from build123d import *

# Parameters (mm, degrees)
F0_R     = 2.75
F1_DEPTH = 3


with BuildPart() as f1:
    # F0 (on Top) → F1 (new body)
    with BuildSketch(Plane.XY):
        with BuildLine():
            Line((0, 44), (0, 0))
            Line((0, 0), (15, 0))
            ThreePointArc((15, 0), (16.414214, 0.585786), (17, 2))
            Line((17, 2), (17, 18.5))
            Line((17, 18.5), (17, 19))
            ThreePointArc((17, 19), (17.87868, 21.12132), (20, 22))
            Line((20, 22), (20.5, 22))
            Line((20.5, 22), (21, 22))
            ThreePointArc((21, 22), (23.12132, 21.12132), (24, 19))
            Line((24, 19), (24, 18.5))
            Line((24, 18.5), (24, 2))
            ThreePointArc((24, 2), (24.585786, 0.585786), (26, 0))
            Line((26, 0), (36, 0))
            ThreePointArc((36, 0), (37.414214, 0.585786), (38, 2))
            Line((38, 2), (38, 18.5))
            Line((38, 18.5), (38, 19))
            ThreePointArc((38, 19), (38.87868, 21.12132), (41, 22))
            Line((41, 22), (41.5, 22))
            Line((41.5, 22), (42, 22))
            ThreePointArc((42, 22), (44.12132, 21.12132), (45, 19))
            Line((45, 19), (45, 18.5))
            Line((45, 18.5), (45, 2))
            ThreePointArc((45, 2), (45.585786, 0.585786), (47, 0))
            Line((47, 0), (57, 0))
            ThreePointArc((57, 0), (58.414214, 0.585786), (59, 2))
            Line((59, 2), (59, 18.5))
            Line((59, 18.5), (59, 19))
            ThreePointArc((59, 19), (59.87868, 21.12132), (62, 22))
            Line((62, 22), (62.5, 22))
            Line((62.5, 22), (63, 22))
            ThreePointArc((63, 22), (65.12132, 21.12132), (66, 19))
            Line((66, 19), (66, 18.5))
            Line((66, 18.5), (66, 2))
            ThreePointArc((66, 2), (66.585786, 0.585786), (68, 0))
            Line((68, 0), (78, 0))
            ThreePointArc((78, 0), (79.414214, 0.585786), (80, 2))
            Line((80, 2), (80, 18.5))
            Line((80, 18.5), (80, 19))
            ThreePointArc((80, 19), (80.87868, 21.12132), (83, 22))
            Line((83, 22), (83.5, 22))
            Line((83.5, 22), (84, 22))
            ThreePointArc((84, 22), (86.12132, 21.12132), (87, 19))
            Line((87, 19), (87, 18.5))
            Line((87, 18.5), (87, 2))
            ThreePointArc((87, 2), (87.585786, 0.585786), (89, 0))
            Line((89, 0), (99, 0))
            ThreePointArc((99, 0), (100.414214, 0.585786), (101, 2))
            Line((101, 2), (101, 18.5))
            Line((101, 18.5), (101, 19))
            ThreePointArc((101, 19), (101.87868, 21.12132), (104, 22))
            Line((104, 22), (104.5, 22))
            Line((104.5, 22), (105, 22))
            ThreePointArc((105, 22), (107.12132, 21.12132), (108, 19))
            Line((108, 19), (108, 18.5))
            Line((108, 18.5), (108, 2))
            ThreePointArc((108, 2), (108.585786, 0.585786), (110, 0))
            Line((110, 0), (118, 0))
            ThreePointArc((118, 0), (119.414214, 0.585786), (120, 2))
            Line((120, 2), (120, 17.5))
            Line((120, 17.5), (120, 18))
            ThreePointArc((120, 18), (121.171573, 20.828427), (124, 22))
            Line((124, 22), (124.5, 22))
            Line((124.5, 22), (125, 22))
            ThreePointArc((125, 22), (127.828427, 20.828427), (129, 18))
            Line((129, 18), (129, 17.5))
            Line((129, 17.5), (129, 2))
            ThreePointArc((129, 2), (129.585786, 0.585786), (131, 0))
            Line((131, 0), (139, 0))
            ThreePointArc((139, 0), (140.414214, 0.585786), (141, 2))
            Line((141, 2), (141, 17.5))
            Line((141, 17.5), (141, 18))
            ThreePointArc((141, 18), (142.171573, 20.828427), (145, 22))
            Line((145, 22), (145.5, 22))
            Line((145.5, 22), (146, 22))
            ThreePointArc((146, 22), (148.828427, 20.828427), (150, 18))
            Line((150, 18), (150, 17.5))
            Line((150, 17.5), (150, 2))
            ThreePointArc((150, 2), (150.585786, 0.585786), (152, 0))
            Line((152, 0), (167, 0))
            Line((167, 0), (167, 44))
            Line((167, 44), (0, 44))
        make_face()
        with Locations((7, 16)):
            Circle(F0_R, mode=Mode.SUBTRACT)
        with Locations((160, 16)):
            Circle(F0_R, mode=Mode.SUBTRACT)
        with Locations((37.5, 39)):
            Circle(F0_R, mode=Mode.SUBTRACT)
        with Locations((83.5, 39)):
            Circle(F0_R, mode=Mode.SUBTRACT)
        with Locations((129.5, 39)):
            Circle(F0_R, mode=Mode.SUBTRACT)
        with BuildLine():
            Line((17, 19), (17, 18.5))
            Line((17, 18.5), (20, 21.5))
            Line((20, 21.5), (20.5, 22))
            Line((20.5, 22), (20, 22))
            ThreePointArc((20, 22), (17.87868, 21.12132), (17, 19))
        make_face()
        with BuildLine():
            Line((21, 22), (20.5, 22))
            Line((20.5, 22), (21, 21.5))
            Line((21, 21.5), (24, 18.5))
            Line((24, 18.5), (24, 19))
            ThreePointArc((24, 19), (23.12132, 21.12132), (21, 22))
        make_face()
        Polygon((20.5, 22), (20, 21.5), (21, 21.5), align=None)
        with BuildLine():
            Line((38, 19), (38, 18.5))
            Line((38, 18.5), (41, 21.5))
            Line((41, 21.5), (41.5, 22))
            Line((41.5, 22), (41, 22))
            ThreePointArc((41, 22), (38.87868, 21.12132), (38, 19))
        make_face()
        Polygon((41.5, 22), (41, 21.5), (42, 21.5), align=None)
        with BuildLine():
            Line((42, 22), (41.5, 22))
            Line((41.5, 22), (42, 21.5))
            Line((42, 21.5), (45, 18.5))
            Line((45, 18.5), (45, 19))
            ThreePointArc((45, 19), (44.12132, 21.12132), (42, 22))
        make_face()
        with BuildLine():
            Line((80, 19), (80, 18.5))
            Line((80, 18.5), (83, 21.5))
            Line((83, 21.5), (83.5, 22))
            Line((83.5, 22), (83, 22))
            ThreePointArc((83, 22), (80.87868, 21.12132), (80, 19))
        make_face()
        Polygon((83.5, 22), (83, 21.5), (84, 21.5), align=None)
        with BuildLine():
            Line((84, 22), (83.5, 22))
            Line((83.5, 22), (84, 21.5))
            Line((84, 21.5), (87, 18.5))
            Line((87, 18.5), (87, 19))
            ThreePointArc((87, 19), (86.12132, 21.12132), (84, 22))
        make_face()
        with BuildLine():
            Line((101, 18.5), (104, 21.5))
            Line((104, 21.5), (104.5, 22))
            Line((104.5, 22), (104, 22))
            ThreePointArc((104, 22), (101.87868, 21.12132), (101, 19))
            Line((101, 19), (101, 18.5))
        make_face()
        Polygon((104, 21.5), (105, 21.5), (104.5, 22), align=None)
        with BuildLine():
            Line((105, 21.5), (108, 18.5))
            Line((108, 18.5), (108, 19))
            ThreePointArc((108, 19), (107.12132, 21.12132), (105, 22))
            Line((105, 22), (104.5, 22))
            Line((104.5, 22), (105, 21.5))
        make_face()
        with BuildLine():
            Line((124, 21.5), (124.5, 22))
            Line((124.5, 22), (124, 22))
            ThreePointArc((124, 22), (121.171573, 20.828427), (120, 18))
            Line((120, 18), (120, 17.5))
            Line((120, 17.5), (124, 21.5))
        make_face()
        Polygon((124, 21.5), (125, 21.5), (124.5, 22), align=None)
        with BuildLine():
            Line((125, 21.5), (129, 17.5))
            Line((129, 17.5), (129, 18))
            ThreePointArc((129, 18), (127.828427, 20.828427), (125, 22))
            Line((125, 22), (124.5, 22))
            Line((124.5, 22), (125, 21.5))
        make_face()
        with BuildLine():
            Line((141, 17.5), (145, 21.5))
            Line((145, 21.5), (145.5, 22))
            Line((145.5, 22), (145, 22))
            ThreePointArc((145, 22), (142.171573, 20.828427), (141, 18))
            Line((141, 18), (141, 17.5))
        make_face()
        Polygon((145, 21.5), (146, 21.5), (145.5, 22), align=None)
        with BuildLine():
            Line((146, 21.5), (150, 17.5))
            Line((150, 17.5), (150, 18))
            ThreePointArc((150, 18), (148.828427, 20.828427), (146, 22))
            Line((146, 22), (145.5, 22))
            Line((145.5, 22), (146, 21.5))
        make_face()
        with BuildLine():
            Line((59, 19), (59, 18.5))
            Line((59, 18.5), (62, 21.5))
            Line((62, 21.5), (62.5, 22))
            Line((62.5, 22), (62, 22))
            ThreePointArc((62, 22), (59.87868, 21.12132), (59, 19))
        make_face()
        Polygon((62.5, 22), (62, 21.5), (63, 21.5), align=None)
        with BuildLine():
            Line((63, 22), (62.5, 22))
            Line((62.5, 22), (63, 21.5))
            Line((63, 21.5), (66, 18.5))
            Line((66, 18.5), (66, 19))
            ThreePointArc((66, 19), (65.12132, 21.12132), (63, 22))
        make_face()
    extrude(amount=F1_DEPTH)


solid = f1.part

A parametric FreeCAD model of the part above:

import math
import FreeCAD as App
import Part
import Sketcher
from FreeCAD import Vector

doc = App.newDocument("Part")
params = doc.addObject("Spreadsheet::Sheet", "Params")
for row, (alias, value) in enumerate([
    ("sketch1_radius", "1.999999 mm"),
    ("sketch1_diameter", "5.5 mm"),
    ("sketch1_width", "15 mm"),
    ("sketch1_width2", "1 mm"),
    ("sketch1_width3", "10 mm"),
    ("pad1_length", "3 mm"),
], start=1):
    params.set(f"A{row}", alias)
    params.set(f"B{row}", "=" + value)
    params.setAlias(f"B{row}", alias)

body = doc.addObject("PartDesign::Body", "Body")

# Sketch on XY plane
sketch1 = doc.addObject("Sketcher::SketchObject", "Sketch")
body.addObject(sketch1)
sketch1.AttachmentSupport = (doc.XY_Plane, [""])
sketch1.MapMode = "FlatFace"
sketch1.addGeometry(Part.LineSegment(Vector(0, 44, 0), Vector(0, 0, 0)), False)
sketch1.addGeometry(Part.LineSegment(Vector(0, 0, 0), Vector(15, 0, 0)), False)
sketch1.addGeometry(Part.ArcOfCircle(Part.Circle(Vector(15.000001, 1.999999, 0), Vector(0, 0, 1), 1.999999), math.radians(-90.000043), math.radians(0.000043)), False)
sketch1.addGeometry(Part.LineSegment(Vector(17, 2, 0), Vector(17, 18.5, 0)), False)
sketch1.addGeometry(Part.LineSegment(Vector(17, 18.5, 0), Vector(20, 21.5, 0)), False)
sketch1.addGeometry(Part.LineSegment(Vector(20, 21.5, 0), Vector(21, 21.5, 0)), False)
sketch1.addGeometry(Part.LineSegment(Vector(21, 21.5, 0), Vector(24, 18.5, 0)), False)
sketch1.addGeometry(Part.LineSegment(Vector(24, 18.5, 0), Vector(24, 2, 0)), False)
sketch1.addGeometry(Part.ArcOfCircle(Part.Circle(Vector(25.999999, 1.999999, 0), Vector(0, 0, 1), 1.999999), math.radians(179.999957), math.radians(270.000043)), False)
sketch1.addGeometry(Part.LineSegment(Vector(26, 0, 0), Vector(36, 0, 0)), False)
sketch1.addGeometry(Part.ArcOfCircle(Part.Circle(Vector(36.000001, 1.999999, 0), Vector(0, 0, 1), 1.999999), math.radians(-90.000043), math.radians(0.000043)), False)
sketch1.addGeometry(Part.LineSegment(Vector(38, 2, 0), Vector(38, 18.5, 0)), False)
sketch1.addGeometry(Part.LineSegment(Vector(38, 18.5, 0), Vector(41, 21.5, 0)), False)
sketch1.addGeometry(Part.LineSegment(Vector(41, 21.5, 0), Vector(42, 21.5, 0)), False)
sketch1.addGeometry(Part.LineSegment(Vector(42, 21.5, 0), Vector(45, 18.5, 0)), False)
sketch1.addGeometry(Part.LineSegment(Vector(45, 18.5, 0), Vector(45, 2, 0)), False)
sketch1.addGeometry(Part.ArcOfCircle(Part.Circle(Vector(46.999999, 1.999999, 0), Vector(0, 0, 1), 1.999999), math.radians(179.999957), math.radians(270.000043)), False)
sketch1.addGeometry(Part.LineSegment(Vector(47, 0, 0), Vector(57, 0, 0)), False)
sketch1.addGeometry(Part.ArcOfCircle(Part.Circle(Vector(57.000001, 1.999999, 0), Vector(0, 0, 1), 1.999999), math.radians(-90.000043), math.radians(0.000043)), False)
sketch1.addGeometry(Part.LineSegment(Vector(59, 2, 0), Vector(59, 18.5, 0)), False)
sketch1.addGeometry(Part.LineSegment(Vector(59, 18.5, 0), Vector(62, 21.5, 0)), False)
sketch1.addGeometry(Part.LineSegment(Vector(62, 21.5, 0), Vector(63, 21.5, 0)), False)
sketch1.addGeometry(Part.LineSegment(Vector(63, 21.5, 0), Vector(66, 18.5, 0)), False)
sketch1.addGeometry(Part.LineSegment(Vector(66, 18.5, 0), Vector(66, 2, 0)), False)
sketch1.addGeometry(Part.ArcOfCircle(Part.Circle(Vector(67.999999, 1.999999, 0), Vector(0, 0, 1), 1.999999), math.radians(179.999957), math.radians(270.000043)), False)
sketch1.addGeometry(Part.LineSegment(Vector(68, 0, 0), Vector(78, 0, 0)), False)
sketch1.addGeometry(Part.ArcOfCircle(Part.Circle(Vector(78.000001, 1.999999, 0), Vector(0, 0, 1), 1.999999), math.radians(-90.000043), math.radians(0.000043)), False)
sketch1.addGeometry(Part.LineSegment(Vector(80, 2, 0), Vector(80, 18.5, 0)), False)
sketch1.addGeometry(Part.LineSegment(Vector(80, 18.5, 0), Vector(83, 21.5, 0)), False)
sketch1.addGeometry(Part.LineSegment(Vector(83, 21.5, 0), Vector(84, 21.5, 0)), False)
sketch1.addGeometry(Part.LineSegment(Vector(84, 21.5, 0), Vector(87, 18.5, 0)), False)
sketch1.addGeometry(Part.LineSegment(Vector(87, 18.5, 0), Vector(87, 2, 0)), False)
sketch1.addGeometry(Part.ArcOfCircle(Part.Circle(Vector(88.999999, 1.999999, 0), Vector(0, 0, 1), 1.999999), math.radians(179.999957), math.radians(270.000043)), False)
sketch1.addGeometry(Part.LineSegment(Vector(89, 0, 0), Vector(99, 0, 0)), False)
sketch1.addGeometry(Part.ArcOfCircle(Part.Circle(Vector(99.000001, 1.999999, 0), Vector(0, 0, 1), 1.999999), math.radians(-90.000043), math.radians(0.000043)), False)
sketch1.addGeometry(Part.LineSegment(Vector(101, 2, 0), Vector(101, 18.5, 0)), False)
sketch1.addGeometry(Part.LineSegment(Vector(101, 18.5, 0), Vector(104, 21.5, 0)), False)
sketch1.addGeometry(Part.LineSegment(Vector(104, 21.5, 0), Vector(105, 21.5, 0)), False)
sketch1.addGeometry(Part.LineSegment(Vector(105, 21.5, 0), Vector(108, 18.5, 0)), False)
sketch1.addGeometry(Part.LineSegment(Vector(108, 18.5, 0), Vector(108, 2, 0)), False)
sketch1.addGeometry(Part.ArcOfCircle(Part.Circle(Vector(109.999999, 1.999999, 0), Vector(0, 0, 1), 1.999999), math.radians(179.999957), math.radians(270.000043)), False)
sketch1.addGeometry(Part.LineSegment(Vector(110, 0, 0), Vector(118, 0, 0)), False)
sketch1.addGeometry(Part.ArcOfCircle(Part.Circle(Vector(118.000001, 1.999999, 0), Vector(0, 0, 1), 1.999999), math.radians(-90.000043), math.radians(0.000043)), False)
sketch1.addGeometry(Part.LineSegment(Vector(120, 2, 0), Vector(120, 17.5, 0)), False)
sketch1.addGeometry(Part.LineSegment(Vector(120, 17.5, 0), Vector(124, 21.5, 0)), False)
sketch1.addGeometry(Part.LineSegment(Vector(124, 21.5, 0), Vector(125, 21.5, 0)), False)
sketch1.addGeometry(Part.LineSegment(Vector(125, 21.5, 0), Vector(129, 17.5, 0)), False)
sketch1.addGeometry(Part.LineSegment(Vector(129, 17.5, 0), Vector(129, 2, 0)), False)
sketch1.addGeometry(Part.ArcOfCircle(Part.Circle(Vector(130.999999, 1.999999, 0), Vector(0, 0, 1), 1.999999), math.radians(179.999957), math.radians(270.000043)), False)
sketch1.addGeometry(Part.LineSegment(Vector(131, 0, 0), Vector(139, 0, 0)), False)
sketch1.addGeometry(Part.ArcOfCircle(Part.Circle(Vector(139.000001, 1.999999, 0), Vector(0, 0, 1), 1.999999), math.radians(-90.000043), math.radians(0.000043)), False)
sketch1.addGeometry(Part.LineSegment(Vector(141, 2, 0), Vector(141, 17.5, 0)), False)
sketch1.addGeometry(Part.LineSegment(Vector(141, 17.5, 0), Vector(145, 21.5, 0)), False)
sketch1.addGeometry(Part.LineSegment(Vector(145, 21.5, 0), Vector(146, 21.5, 0)), False)
sketch1.addGeometry(Part.LineSegment(Vector(146, 21.5, 0), Vector(150, 17.5, 0)), False)
sketch1.addGeometry(Part.LineSegment(Vector(150, 17.5, 0), Vector(150, 2, 0)), False)
sketch1.addGeometry(Part.ArcOfCircle(Part.Circle(Vector(151.999999, 1.999999, 0), Vector(0, 0, 1), 1.999999), math.radians(179.999957), math.radians(270.000043)), False)
sketch1.addGeometry(Part.LineSegment(Vector(152, 0, 0), Vector(167, 0, 0)), False)
sketch1.addGeometry(Part.LineSegment(Vector(167, 0, 0), Vector(167, 44, 0)), False)
sketch1.addGeometry(Part.LineSegment(Vector(167, 44, 0), Vector(0, 44, 0)), False)
sketch1.addGeometry(Part.Circle(Vector(7, 16, 0), Vector(0, 0, 1), 2.75), False)
sketch1.addGeometry(Part.Circle(Vector(160, 16, 0), Vector(0, 0, 1), 2.75), False)
sketch1.addGeometry(Part.Circle(Vector(37.5, 39, 0), Vector(0, 0, 1), 2.75), False)
sketch1.addGeometry(Part.Circle(Vector(83.5, 39, 0), Vector(0, 0, 1), 2.75), False)
sketch1.addGeometry(Part.Circle(Vector(129.5, 39, 0), Vector(0, 0, 1), 2.75), False)
sketch1.addConstraint(Sketcher.Constraint("Coincident", 0, 2, 1, 1))
sketch1.addConstraint(Sketcher.Constraint("Tangent", 1, 2, 2, 1))
sketch1.addConstraint(Sketcher.Constraint("Tangent", 2, 2, 3, 1))
sketch1.addConstraint(Sketcher.Constraint("Coincident", 3, 2, 4, 1))
sketch1.addConstraint(Sketcher.Constraint("Coincident", 4, 2, 5, 1))
sketch1.addConstraint(Sketcher.Constraint("Coincident", 5, 2, 6, 1))
sketch1.addConstraint(Sketcher.Constraint("Coincident", 6, 2, 7, 1))
sketch1.addConstraint(Sketcher.Constraint("Tangent", 7, 2, 8, 1))
sketch1.addConstraint(Sketcher.Constraint("Tangent", 8, 2, 9, 1))
sketch1.addConstraint(Sketcher.Constraint("Tangent", 9, 2, 10, 1))
sketch1.addConstraint(Sketcher.Constraint("Tangent", 10, 2, 11, 1))
sketch1.addConstraint(Sketcher.Constraint("Coincident", 11, 2, 12, 1))
sketch1.addConstraint(Sketcher.Constraint("Coincident", 12, 2, 13, 1))
sketch1.addConstraint(Sketcher.Constraint("Coincident", 13, 2, 14, 1))
sketch1.addConstraint(Sketcher.Constraint("Coincident", 14, 2, 15, 1))
sketch1.addConstraint(Sketcher.Constraint("Tangent", 15, 2, 16, 1))
sketch1.addConstraint(Sketcher.Constraint("Tangent", 16, 2, 17, 1))
sketch1.addConstraint(Sketcher.Constraint("Tangent", 17, 2, 18, 1))
sketch1.addConstraint(Sketcher.Constraint("Tangent", 18, 2, 19, 1))
sketch1.addConstraint(Sketcher.Constraint("Coincident", 19, 2, 20, 1))
sketch1.addConstraint(Sketcher.Constraint("Coincident", 20, 2, 21, 1))
sketch1.addConstraint(Sketcher.Constraint("Coincident", 21, 2, 22, 1))
sketch1.addConstraint(Sketcher.Constraint("Coincident", 22, 2, 23, 1))
sketch1.addConstraint(Sketcher.Constraint("Tangent", 23, 2, 24, 1))
sketch1.addConstraint(Sketcher.Constraint("Tangent", 24, 2, 25, 1))
sketch1.addConstraint(Sketcher.Constraint("Tangent", 25, 2, 26, 1))
sketch1.addConstraint(Sketcher.Constraint("Tangent", 26, 2, 27, 1))
sketch1.addConstraint(Sketcher.Constraint("Coincident", 27, 2, 28, 1))
sketch1.addConstraint(Sketcher.Constraint("Coincident", 28, 2, 29, 1))
sketch1.addConstraint(Sketcher.Constraint("Coincident", 29, 2, 30, 1))
sketch1.addConstraint(Sketcher.Constraint("Coincident", 30, 2, 31, 1))
sketch1.addConstraint(Sketcher.Constraint("Tangent", 31, 2, 32, 1))
sketch1.addConstraint(Sketcher.Constraint("Tangent", 32, 2, 33, 1))
sketch1.addConstraint(Sketcher.Constraint("Tangent", 33, 2, 34, 1))
sketch1.addConstraint(Sketcher.Constraint("Tangent", 34, 2, 35, 1))
sketch1.addConstraint(Sketcher.Constraint("Coincident", 35, 2, 36, 1))
sketch1.addConstraint(Sketcher.Constraint("Coincident", 36, 2, 37, 1))
sketch1.addConstraint(Sketcher.Constraint("Coincident", 37, 2, 38, 1))
sketch1.addConstraint(Sketcher.Constraint("Coincident", 38, 2, 39, 1))
sketch1.addConstraint(Sketcher.Constraint("Tangent", 39, 2, 40, 1))
sketch1.addConstraint(Sketcher.Constraint("Tangent", 40, 2, 41, 1))
sketch1.addConstraint(Sketcher.Constraint("Tangent", 41, 2, 42, 1))
sketch1.addConstraint(Sketcher.Constraint("Tangent", 42, 2, 43, 1))
sketch1.addConstraint(Sketcher.Constraint("Coincident", 43, 2, 44, 1))
sketch1.addConstraint(Sketcher.Constraint("Coincident", 44, 2, 45, 1))
sketch1.addConstraint(Sketcher.Constraint("Coincident", 45, 2, 46, 1))
sketch1.addConstraint(Sketcher.Constraint("Coincident", 46, 2, 47, 1))
sketch1.addConstraint(Sketcher.Constraint("Tangent", 47, 2, 48, 1))
sketch1.addConstraint(Sketcher.Constraint("Tangent", 48, 2, 49, 1))
sketch1.addConstraint(Sketcher.Constraint("Tangent", 49, 2, 50, 1))
sketch1.addConstraint(Sketcher.Constraint("Tangent", 50, 2, 51, 1))
sketch1.addConstraint(Sketcher.Constraint("Coincident", 51, 2, 52, 1))
sketch1.addConstraint(Sketcher.Constraint("Coincident", 52, 2, 53, 1))
sketch1.addConstraint(Sketcher.Constraint("Coincident", 53, 2, 54, 1))
sketch1.addConstraint(Sketcher.Constraint("Coincident", 54, 2, 55, 1))
sketch1.addConstraint(Sketcher.Constraint("Tangent", 55, 2, 56, 1))
sketch1.addConstraint(Sketcher.Constraint("Tangent", 56, 2, 57, 1))
sketch1.addConstraint(Sketcher.Constraint("Coincident", 57, 2, 58, 1))
sketch1.addConstraint(Sketcher.Constraint("Coincident", 58, 2, 59, 1))
sketch1.addConstraint(Sketcher.Constraint("Coincident", 59, 2, 0, 1))
sketch1.addConstraint(Sketcher.Constraint("Vertical", 0))
sketch1.addConstraint(Sketcher.Constraint("Horizontal", 1))
sketch1.addConstraint(Sketcher.Constraint("Vertical", 3))
sketch1.addConstraint(Sketcher.Constraint("Horizontal", 5))
sketch1.addConstraint(Sketcher.Constraint("Vertical", 7))
sketch1.addConstraint(Sketcher.Constraint("Horizontal", 9))
sketch1.addConstraint(Sketcher.Constraint("Vertical", 11))
sketch1.addConstraint(Sketcher.Constraint("Horizontal", 13))
sketch1.addConstraint(Sketcher.Constraint("Vertical", 15))
sketch1.addConstraint(Sketcher.Constraint("Horizontal", 17))
sketch1.addConstraint(Sketcher.Constraint("Vertical", 19))
sketch1.addConstraint(Sketcher.Constraint("Horizontal", 21))
sketch1.addConstraint(Sketcher.Constraint("Vertical", 23))
sketch1.addConstraint(Sketcher.Constraint("Horizontal", 25))
sketch1.addConstraint(Sketcher.Constraint("Vertical", 27))
sketch1.addConstraint(Sketcher.Constraint("Horizontal", 29))
sketch1.addConstraint(Sketcher.Constraint("Vertical", 31))
sketch1.addConstraint(Sketcher.Constraint("Horizontal", 33))
sketch1.addConstraint(Sketcher.Constraint("Vertical", 35))
sketch1.addConstraint(Sketcher.Constraint("Horizontal", 37))
sketch1.addConstraint(Sketcher.Constraint("Vertical", 39))
sketch1.addConstraint(Sketcher.Constraint("Horizontal", 41))
sketch1.addConstraint(Sketcher.Constraint("Vertical", 43))
sketch1.addConstraint(Sketcher.Constraint("Horizontal", 45))
sketch1.addConstraint(Sketcher.Constraint("Vertical", 47))
sketch1.addConstraint(Sketcher.Constraint("Horizontal", 49))
sketch1.addConstraint(Sketcher.Constraint("Vertical", 51))
sketch1.addConstraint(Sketcher.Constraint("Horizontal", 53))
sketch1.addConstraint(Sketcher.Constraint("Vertical", 55))
sketch1.addConstraint(Sketcher.Constraint("Horizontal", 57))
sketch1.addConstraint(Sketcher.Constraint("Vertical", 58))
sketch1.addConstraint(Sketcher.Constraint("Horizontal", 59))
sketch1.addConstraint(Sketcher.Constraint("Coincident", 0, 2, -1, 1))
sketch1.addConstraint(Sketcher.Constraint("Equal", 2, 8))
sketch1.addConstraint(Sketcher.Constraint("Equal", 8, 10))
sketch1.addConstraint(Sketcher.Constraint("Equal", 10, 16))
sketch1.addConstraint(Sketcher.Constraint("Equal", 16, 18))
sketch1.addConstraint(Sketcher.Constraint("Equal", 18, 24))
sketch1.addConstraint(Sketcher.Constraint("Equal", 24, 26))
sketch1.addConstraint(Sketcher.Constraint("Equal", 26, 32))
sketch1.addConstraint(Sketcher.Constraint("Equal", 32, 34))
sketch1.addConstraint(Sketcher.Constraint("Equal", 34, 40))
sketch1.addConstraint(Sketcher.Constraint("Equal", 40, 42))
sketch1.addConstraint(Sketcher.Constraint("Equal", 42, 48))
sketch1.addConstraint(Sketcher.Constraint("Equal", 48, 50))
sketch1.addConstraint(Sketcher.Constraint("Equal", 50, 56))
sketch1.addConstraint(Sketcher.Constraint("Equal", 60, 61))
sketch1.addConstraint(Sketcher.Constraint("Equal", 61, 62))
sketch1.addConstraint(Sketcher.Constraint("Equal", 62, 63))
sketch1.addConstraint(Sketcher.Constraint("Equal", 63, 64))
sketch1.addConstraint(Sketcher.Constraint("PointOnObject", 8, 2, -1))
sketch1.addConstraint(Sketcher.Constraint("PointOnObject", 16, 2, -1))
sketch1.addConstraint(Sketcher.Constraint("PointOnObject", 24, 2, -1))
sketch1.addConstraint(Sketcher.Constraint("PointOnObject", 32, 2, -1))
sketch1.addConstraint(Sketcher.Constraint("PointOnObject", 40, 2, -1))
sketch1.addConstraint(Sketcher.Constraint("PointOnObject", 48, 2, -1))
sketch1.addConstraint(Sketcher.Constraint("PointOnObject", 56, 2, -1))
sketch1.addConstraint(Sketcher.Constraint("Perpendicular", 4, 6))
sketch1.addConstraint(Sketcher.Constraint("Perpendicular", 6, 12))
sketch1.addConstraint(Sketcher.Constraint("Perpendicular", 12, 14))
sketch1.addConstraint(Sketcher.Constraint("Perpendicular", 14, 20))
sketch1.addConstraint(Sketcher.Constraint("Perpendicular", 20, 22))
sketch1.addConstraint(Sketcher.Constraint("Perpendicular", 22, 28))
sketch1.addConstraint(Sketcher.Constraint("Perpendicular", 28, 30))
sketch1.addConstraint(Sketcher.Constraint("Perpendicular", 30, 36))
sketch1.addConstraint(Sketcher.Constraint("Perpendicular", 36, 38))
sketch1.addConstraint(Sketcher.Constraint("Perpendicular", 38, 44))
sketch1.addConstraint(Sketcher.Constraint("Perpendicular", 44, 46))
sketch1.addConstraint(Sketcher.Constraint("Perpendicular", 46, 52))
sketch1.addConstraint(Sketcher.Constraint("Perpendicular", 52, 54))
sketch1.addConstraint(Sketcher.Constraint("Horizontal", 60, 3, 61, 3))
sketch1.addConstraint(Sketcher.Constraint("Horizontal", 62, 3, 63, 3))
sketch1.addConstraint(Sketcher.Constraint("Horizontal", 63, 3, 64, 3))
sketch1.addConstraint(Sketcher.Constraint("Horizontal", 3, 2, 6, 2))
sketch1.addConstraint(Sketcher.Constraint("Horizontal", 6, 2, 11, 2))
sketch1.addConstraint(Sketcher.Constraint("Horizontal", 5, 2, 12, 2))
sketch1.addConstraint(Sketcher.Constraint("Horizontal", 11, 2, 14, 2))
sketch1.addConstraint(Sketcher.Constraint("Horizontal", 14, 2, 19, 2))
sketch1.addConstraint(Sketcher.Constraint("Horizontal", 13, 2, 20, 2))
sketch1.addConstraint(Sketcher.Constraint("Horizontal", 19, 2, 22, 2))
sketch1.addConstraint(Sketcher.Constraint("Horizontal", 22, 2, 27, 2))
sketch1.addConstraint(Sketcher.Constraint("Horizontal", 21, 2, 28, 2))
sketch1.addConstraint(Sketcher.Constraint("Horizontal", 27, 2, 30, 2))
sketch1.addConstraint(Sketcher.Constraint("Horizontal", 30, 2, 35, 2))
sketch1.addConstraint(Sketcher.Constraint("Horizontal", 29, 2, 36, 2))
sketch1.addConstraint(Sketcher.Constraint("Horizontal", 35, 2, 38, 2))
sketch1.addConstraint(Sketcher.Constraint("Horizontal", 37, 2, 44, 2))
sketch1.addConstraint(Sketcher.Constraint("Horizontal", 43, 2, 46, 2))
sketch1.addConstraint(Sketcher.Constraint("Horizontal", 46, 2, 51, 2))
sketch1.addConstraint(Sketcher.Constraint("Horizontal", 45, 2, 52, 2))
sketch1.addConstraint(Sketcher.Constraint("Horizontal", 51, 2, 54, 2))
sketch1.addConstraint(Sketcher.Constraint("Equal", 5, 13))
sketch1.addConstraint(Sketcher.Constraint("Equal", 9, 17))
sketch1.addConstraint(Sketcher.Constraint("Equal", 13, 21))
sketch1.addConstraint(Sketcher.Constraint("Equal", 17, 25))
sketch1.addConstraint(Sketcher.Constraint("Equal", 21, 29))
sketch1.addConstraint(Sketcher.Constraint("Equal", 25, 33))
sketch1.addConstraint(Sketcher.Constraint("Equal", 29, 37))
sketch1.addConstraint(Sketcher.Constraint("Equal", 37, 45))
sketch1.addConstraint(Sketcher.Constraint("Equal", 41, 49))
sketch1.addConstraint(Sketcher.Constraint("Equal", 45, 53))
sketch1.addConstraint(Sketcher.Constraint("Equal", 1, 57))
sketch1.addConstraint(Sketcher.Constraint("Equal", 4, 6))
sketch1.addConstraint(Sketcher.Constraint("Radius", 2, 1.999999))
sketch1.addConstraint(Sketcher.Constraint("Diameter", 60, 5.5))
sketch1.addConstraint(Sketcher.Constraint("DistanceX", 1, 1, 1, 2, 15.0))
sketch1.addConstraint(Sketcher.Constraint("DistanceX", 5, 1, 5, 2, 1.0))
sketch1.addConstraint(Sketcher.Constraint("DistanceX", 9, 1, 9, 2, 10.0))
sketch1.addConstraint(Sketcher.Constraint("DistanceX", 41, 1, 41, 2, 8.0))
sketch1.addConstraint(Sketcher.Constraint("DistanceX", 59, 2, 59, 1, 167.0))
sketch1.addConstraint(Sketcher.Constraint("DistanceY", 0, 2, 0, 1, 44.0))
sketch1.addConstraint(Sketcher.Constraint("DistanceY", 3, 1, 3, 2, 16.5))
sketch1.addConstraint(Sketcher.Constraint("DistanceY", 43, 1, 43, 2, 15.5))
sketch1.addConstraint(Sketcher.Constraint("DistanceX", -1, 1, 60, 3, 7.0))
sketch1.addConstraint(Sketcher.Constraint("DistanceY", -1, 1, 60, 3, 16.0))
sketch1.addConstraint(Sketcher.Constraint("DistanceX", -1, 1, 61, 3, 160.0))
sketch1.addConstraint(Sketcher.Constraint("DistanceY", -1, 1, 62, 3, 39.0))
sketch1.addConstraint(Sketcher.Constraint("DistanceX", -1, 1, 62, 3, 37.5))
sketch1.addConstraint(Sketcher.Constraint("DistanceX", -1, 1, 63, 3, 83.5))
sketch1.addConstraint(Sketcher.Constraint("DistanceX", -1, 1, 64, 3, 129.5))
sketch1.setExpression("Constraints[163]", "Params.sketch1_radius")
sketch1.setExpression("Constraints[164]", "Params.sketch1_diameter")
sketch1.setExpression("Constraints[165]", "Params.sketch1_width")
sketch1.setExpression("Constraints[166]", "Params.sketch1_width2")
sketch1.setExpression("Constraints[167]", "Params.sketch1_width3")
pad1 = doc.addObject("PartDesign::Pad", "Pad")
body.addObject(pad1)
pad1.Profile = sketch1
pad1.setExpression("Length", "Params.pad1_length")

doc.recompute()
